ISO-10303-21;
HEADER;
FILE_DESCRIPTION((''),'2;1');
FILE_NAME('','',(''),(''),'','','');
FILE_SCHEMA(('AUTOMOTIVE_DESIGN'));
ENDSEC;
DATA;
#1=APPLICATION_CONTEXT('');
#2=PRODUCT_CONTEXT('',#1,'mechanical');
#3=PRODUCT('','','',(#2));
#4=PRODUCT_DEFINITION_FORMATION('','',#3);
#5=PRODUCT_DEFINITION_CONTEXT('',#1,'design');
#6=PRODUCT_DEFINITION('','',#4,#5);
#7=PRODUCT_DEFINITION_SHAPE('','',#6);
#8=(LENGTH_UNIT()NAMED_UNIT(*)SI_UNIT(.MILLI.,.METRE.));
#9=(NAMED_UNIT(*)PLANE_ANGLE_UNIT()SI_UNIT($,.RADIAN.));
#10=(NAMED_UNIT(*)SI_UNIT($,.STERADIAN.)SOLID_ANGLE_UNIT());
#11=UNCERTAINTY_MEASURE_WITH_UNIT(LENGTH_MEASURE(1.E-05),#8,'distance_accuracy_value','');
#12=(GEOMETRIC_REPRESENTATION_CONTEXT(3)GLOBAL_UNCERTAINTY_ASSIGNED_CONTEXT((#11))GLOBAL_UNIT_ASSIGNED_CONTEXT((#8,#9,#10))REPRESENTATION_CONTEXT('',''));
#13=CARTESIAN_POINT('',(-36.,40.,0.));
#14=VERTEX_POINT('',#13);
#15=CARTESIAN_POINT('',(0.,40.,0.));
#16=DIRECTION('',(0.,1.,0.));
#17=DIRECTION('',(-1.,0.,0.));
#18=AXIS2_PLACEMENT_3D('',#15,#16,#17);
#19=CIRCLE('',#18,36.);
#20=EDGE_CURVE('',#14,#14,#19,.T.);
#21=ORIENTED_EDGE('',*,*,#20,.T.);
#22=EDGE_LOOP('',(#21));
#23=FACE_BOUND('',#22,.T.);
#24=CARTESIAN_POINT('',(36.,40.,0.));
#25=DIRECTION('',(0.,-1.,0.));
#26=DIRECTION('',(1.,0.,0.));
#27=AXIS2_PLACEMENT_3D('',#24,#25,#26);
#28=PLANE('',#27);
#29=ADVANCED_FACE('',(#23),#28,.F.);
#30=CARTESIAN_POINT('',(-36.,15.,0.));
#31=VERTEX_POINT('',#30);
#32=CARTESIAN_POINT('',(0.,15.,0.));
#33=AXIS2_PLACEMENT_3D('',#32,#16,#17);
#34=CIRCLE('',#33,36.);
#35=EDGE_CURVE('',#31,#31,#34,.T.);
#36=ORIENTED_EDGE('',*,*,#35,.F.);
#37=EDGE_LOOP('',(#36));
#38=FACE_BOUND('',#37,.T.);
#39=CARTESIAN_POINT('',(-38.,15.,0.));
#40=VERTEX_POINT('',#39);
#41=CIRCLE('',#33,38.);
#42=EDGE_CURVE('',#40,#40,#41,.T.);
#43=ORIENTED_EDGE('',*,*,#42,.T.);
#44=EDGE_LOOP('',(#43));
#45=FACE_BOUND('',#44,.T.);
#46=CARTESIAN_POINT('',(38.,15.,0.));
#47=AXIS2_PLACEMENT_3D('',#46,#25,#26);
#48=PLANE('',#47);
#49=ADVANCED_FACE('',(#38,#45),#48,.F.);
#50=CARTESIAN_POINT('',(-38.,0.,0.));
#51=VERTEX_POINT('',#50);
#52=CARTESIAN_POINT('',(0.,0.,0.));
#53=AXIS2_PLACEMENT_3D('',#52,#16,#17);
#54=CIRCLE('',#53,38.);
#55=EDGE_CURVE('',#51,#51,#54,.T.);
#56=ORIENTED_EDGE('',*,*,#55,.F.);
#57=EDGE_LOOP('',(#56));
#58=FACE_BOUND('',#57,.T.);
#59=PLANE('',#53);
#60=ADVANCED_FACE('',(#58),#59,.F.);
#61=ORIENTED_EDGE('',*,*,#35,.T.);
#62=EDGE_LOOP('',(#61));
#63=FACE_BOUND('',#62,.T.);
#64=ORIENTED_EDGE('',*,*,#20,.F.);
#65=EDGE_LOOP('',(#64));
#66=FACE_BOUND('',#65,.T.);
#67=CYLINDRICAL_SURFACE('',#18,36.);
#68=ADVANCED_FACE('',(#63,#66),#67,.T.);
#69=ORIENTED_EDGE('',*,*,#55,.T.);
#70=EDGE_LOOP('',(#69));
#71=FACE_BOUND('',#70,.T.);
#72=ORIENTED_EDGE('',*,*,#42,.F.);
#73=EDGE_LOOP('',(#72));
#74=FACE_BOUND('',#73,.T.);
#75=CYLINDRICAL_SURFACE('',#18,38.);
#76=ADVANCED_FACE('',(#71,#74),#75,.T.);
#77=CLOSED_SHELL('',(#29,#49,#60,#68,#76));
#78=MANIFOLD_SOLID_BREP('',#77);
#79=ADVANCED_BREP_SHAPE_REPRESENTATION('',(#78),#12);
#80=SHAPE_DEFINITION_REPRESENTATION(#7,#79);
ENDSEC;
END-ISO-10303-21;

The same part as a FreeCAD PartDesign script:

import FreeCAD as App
import Part
import Sketcher

V = App.Vector
Q = App.Units.Quantity

doc = App.newDocument("Part")
body = doc.addObject("PartDesign::Body", "Body")

# Sketch on XY plane
sketch1 = body.newObject("Sketcher::SketchObject", "Sketch")
sketch1.AttachmentSupport = (doc.getObject("XY_Plane"), [""])
sketch1.MapMode = "FlatFace"
sketch1.addGeometry([
    Part.LineSegment(V(0, 0, 0), V(38, 0, 0)),  # 0
    Part.LineSegment(V(38, 0, 0), V(38, 15, 0)),  # 1
    Part.LineSegment(V(38, 15, 0), V(36, 15, 0)),  # 2
    Part.LineSegment(V(36, 15, 0), V(36, 40, 0)),  # 3
    Part.LineSegment(V(36, 40, 0), V(0, 40, 0)),  # 4
    Part.LineSegment(V(0, 40, 0), V(0, 0, 0)),  # 5
], False)
sketch1.addConstraint([
    Sketcher.Constraint("Coincident", 0, 2, 1, 1),
    Sketcher.Constraint("Coincident", 1, 2, 2, 1),
    Sketcher.Constraint("Coincident", 2, 2, 3, 1),
    Sketcher.Constraint("Coincident", 3, 2, 4, 1),
    Sketcher.Constraint("Coincident", 4, 2, 5, 1),
    Sketcher.Constraint("Coincident", 5, 2, 0, 1),
    Sketcher.Constraint("Horizontal", 0),
    Sketcher.Constraint("Vertical", 1),
    Sketcher.Constraint("Horizontal", 2),
    Sketcher.Constraint("Vertical", 3),
    Sketcher.Constraint("Horizontal", 4),
    Sketcher.Constraint("Vertical", 5),
    Sketcher.Constraint("Coincident", 5, 2, -1, 1),
    Sketcher.Constraint("DistanceX", 0, 1, 0, 2, Q("38 mm")),
    Sketcher.Constraint("DistanceX", 2, 2, 2, 1, Q("2 mm")),
    Sketcher.Constraint("DistanceY", 1, 1, 1, 2, Q("15 mm")),
    Sketcher.Constraint("DistanceY", 3, 1, 3, 2, Q("25 mm")),
])
revolution = body.newObject("PartDesign::Revolution", "Revolution")
revolution.Profile = sketch1
revolution.ReferenceAxis = (sketch1, ["V_Axis"])
revolution.Angle = 360

doc.recompute()
